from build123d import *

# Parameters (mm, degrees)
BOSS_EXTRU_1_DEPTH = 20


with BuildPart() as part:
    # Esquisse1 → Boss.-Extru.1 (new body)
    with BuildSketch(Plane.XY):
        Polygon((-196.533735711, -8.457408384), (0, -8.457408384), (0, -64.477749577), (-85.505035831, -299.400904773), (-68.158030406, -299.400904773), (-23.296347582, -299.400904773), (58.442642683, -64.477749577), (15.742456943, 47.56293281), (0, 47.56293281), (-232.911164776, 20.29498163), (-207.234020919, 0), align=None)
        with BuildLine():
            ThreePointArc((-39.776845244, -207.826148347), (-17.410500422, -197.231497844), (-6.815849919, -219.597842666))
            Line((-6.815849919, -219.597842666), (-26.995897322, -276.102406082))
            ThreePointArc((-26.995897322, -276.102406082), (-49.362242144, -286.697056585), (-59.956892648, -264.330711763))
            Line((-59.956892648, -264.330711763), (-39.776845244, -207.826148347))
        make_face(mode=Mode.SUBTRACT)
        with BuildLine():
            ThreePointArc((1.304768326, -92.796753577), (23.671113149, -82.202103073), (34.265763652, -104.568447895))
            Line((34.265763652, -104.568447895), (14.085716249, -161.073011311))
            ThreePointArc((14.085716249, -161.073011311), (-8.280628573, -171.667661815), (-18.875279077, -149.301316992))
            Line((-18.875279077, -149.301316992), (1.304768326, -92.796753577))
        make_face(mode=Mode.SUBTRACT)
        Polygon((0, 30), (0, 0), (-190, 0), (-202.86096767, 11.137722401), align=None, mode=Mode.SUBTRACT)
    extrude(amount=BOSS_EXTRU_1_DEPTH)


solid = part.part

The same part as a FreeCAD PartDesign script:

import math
import FreeCAD as App
import Part
import Sketcher
from FreeCAD import Vector
Q = App.Units.Quantity

doc = App.newDocument("Part")
body = doc.addObject("PartDesign::Body", "Body")

sketch1 = body.newObject("Sketcher::SketchObject", "Sketch")
sketch1.AttachmentSupport = (doc.getObject("XY_Plane"), [""])
sketch1.MapMode = "FlatFace"
sketch1.addGeometry([
    Part.LineSegment(Vector(-197, -8, 0), Vector(0, -8, 0)),
    Part.LineSegment(Vector(0, -8, 0), Vector(0, -64, 0)),
    Part.LineSegment(Vector(0, -64, 0), Vector(-86, -299, 0)),
    Part.LineSegment(Vector(-86, -299, 0), Vector(-23, -299, 0)),
    Part.LineSegment(Vector(-23, -299, 0), Vector(58, -64, 0)),
    Part.LineSegment(Vector(58, -64, 0), Vector(16, 48, 0)),
    Part.LineSegment(Vector(16, 48, 0), Vector(0, 48, 0)),
    Part.LineSegment(Vector(0, 48, 0), Vector(-233, 20, 0)),
    Part.LineSegment(Vector(-233, 20, 0), Vector(-207, 0, 0)),
    Part.LineSegment(Vector(-207, 0, 0), Vector(-197, -8, 0)),
    Part.LineSegment(Vector(-60, -264, 0), Vector(-40, -208, 0)),
    Part.ArcOfCircle(Part.Circle(Vector(-23, -214, 0), Vector(0, 0, 1), 18), math.radians(-20), math.radians(160)),
    Part.LineSegment(Vector(-7, -220, 0), Vector(-27, -276, 0)),
    Part.ArcOfCircle(Part.Circle(Vector(-43, -270, 0), Vector(0, 0, 1), 18), math.radians(160), math.radians(340)),
    Part.LineSegment(Vector(-203, 11, 0), Vector(0, 30, 0)),
    Part.LineSegment(Vector(0, 30, 0), Vector(0, 0, 0)),
    Part.LineSegment(Vector(0, 0, 0), Vector(-190, 0, 0)),
    Part.LineSegment(Vector(-190, 0, 0), Vector(-203, 11, 0)),
    Part.LineSegment(Vector(-19, -149, 0), Vector(1, -93, 0)),
    Part.ArcOfCircle(Part.Circle(Vector(18, -99, 0), Vector(0, 0, 1), 18), math.radians(-20), math.radians(160)),
    Part.LineSegment(Vector(34, -105, 0), Vector(14, -161, 0)),
    Part.ArcOfCircle(Part.Circle(Vector(-2, -155, 0), Vector(0, 0, 1), 18), math.radians(160), math.radians(340)),
], False)
sketch1.addConstraint([
    Sketcher.Constraint("Coincident", 0, 2, 1, 1),
    Sketcher.Constraint("Coincident", 1, 2, 2, 1),
    Sketcher.Constraint("Coincident", 2, 2, 3, 1),
    Sketcher.Constraint("Coincident", 3, 2, 4, 1),
    Sketcher.Constraint("Coincident", 4, 2, 5, 1),
    Sketcher.Constraint("Coincident", 5, 2, 6, 1),
    Sketcher.Constraint("Coincident", 6, 2, 7, 1),
    Sketcher.Constraint("Coincident", 7, 2, 8, 1),
    Sketcher.Constraint("Coincident", 8, 2, 9, 1),
    Sketcher.Constraint("Coincident", 9, 2, 0, 1),
    Sketcher.Constraint("Tangent", 10, 2, 11, 2),
    Sketcher.Constraint("Tangent", 11, 1, 12, 1),
    Sketcher.Constraint("Tangent", 12, 2, 13, 2),
    Sketcher.Constraint("Tangent", 13, 1, 10, 1),
    Sketcher.Constraint("Coincident", 14, 2, 15, 1),
    Sketcher.Constraint("Coincident", 15, 2, 16, 1),
    Sketcher.Constraint("Coincident", 16, 2, 17, 1),
    Sketcher.Constraint("Coincident", 17, 2, 14, 1),
    Sketcher.Constraint("Tangent", 18, 2, 19, 2),
    Sketcher.Constraint("Tangent", 19, 1, 20, 1),
    Sketcher.Constraint("Tangent", 20, 2, 21, 2),
    Sketcher.Constraint("Tangent", 21, 1, 18, 1),
    Sketcher.Constraint("Horizontal", 0),
    Sketcher.Constraint("Vertical", 1),
    Sketcher.Constraint("Horizontal", 3),
    Sketcher.Constraint("Horizontal", 6),
    Sketcher.Constraint("Vertical", 15),
    Sketcher.Constraint("Horizontal", 16),
    Sketcher.Constraint("Coincident", 15, 2, -1, 1),
    Sketcher.Constraint("Equal", 11, 13),
    Sketcher.Constraint("Equal", 13, 19),
    Sketcher.Constraint("Equal", 19, 21),
    Sketcher.Constraint("PointOnObject", 0, 2, -2),
    Sketcher.Constraint("PointOnObject", 6, 2, -2),
    Sketcher.Constraint("PointOnObject", 8, 2, -1),
    Sketcher.Constraint("Parallel", 8, 9),
    Sketcher.Constraint("Parallel", 12, 18),
    Sketcher.Constraint("Horizontal", 1, 2, 4, 2),
    Sketcher.Constraint("Vertical", 11, 3, 3, 2),
    Sketcher.Constraint("Equal", 12, 18),
    Sketcher.Constraint("Radius", 11, Q("17.5 mm")),
    Sketcher.Constraint("DistanceX", 16, 2, 16, 1, Q("190 mm")),
    Sketcher.Constraint("DistanceY", 15, 2, 15, 1, Q("30 mm")),
    Sketcher.Constraint("Angle", 2, Q("-110 deg")),
    Sketcher.Constraint("Distance", 2, Q("250 mm")),
    Sketcher.Constraint("Distance", 10, Q("60 mm")),
    Sketcher.Constraint("Distance", 14, Q("203.736 mm")),
    Sketcher.Constraint("DistanceX", 3, 1, 3, 2, Q("62.208688 mm")),
    Sketcher.Constraint("DistanceY", 1, 2, 1, 1, Q("56.020341 mm")),
    Sketcher.Constraint("DistanceY", 19, 3, -1, 1, Q("98.682601 mm")),
    Sketcher.Constraint("DistanceX", 2, 2, 19, 3, Q("103.290302 mm")),
    Sketcher.Constraint("DistanceY", 3, 2, 12, 2, Q("23.298499 mm")),
    Sketcher.Constraint("DistanceY", 19, 1, 4, 2, Q("40.090698 mm")),
    Sketcher.Constraint("Distance", 5, Q("119.901711 mm")),
    Sketcher.Constraint("Distance", 17, Q("17.013329 mm")),
    Sketcher.Constraint("DistanceX", 0, 1, 0, 2, Q("196.533736 mm")),
    Sketcher.Constraint("DistanceX", 6, 2, 6, 1, Q("15.742457 mm")),
    Sketcher.Constraint("DistanceX", 21, 3, -1, 1, Q("2.394781 mm")),
    Sketcher.Constraint("DistanceY", -1, 1, 7, 2, Q("20.294982 mm")),
    Sketcher.Constraint("DistanceX", 8, 2, -1, 1, Q("207.234021 mm")),
    Sketcher.Constraint("DistanceX", 11, 3, 4, 2, Q("81.73899 mm")),
])
pad1 = body.newObject("PartDesign::Pad", "Pad")
pad1.Profile = sketch1
pad1.Length = 20

doc.recompute()
